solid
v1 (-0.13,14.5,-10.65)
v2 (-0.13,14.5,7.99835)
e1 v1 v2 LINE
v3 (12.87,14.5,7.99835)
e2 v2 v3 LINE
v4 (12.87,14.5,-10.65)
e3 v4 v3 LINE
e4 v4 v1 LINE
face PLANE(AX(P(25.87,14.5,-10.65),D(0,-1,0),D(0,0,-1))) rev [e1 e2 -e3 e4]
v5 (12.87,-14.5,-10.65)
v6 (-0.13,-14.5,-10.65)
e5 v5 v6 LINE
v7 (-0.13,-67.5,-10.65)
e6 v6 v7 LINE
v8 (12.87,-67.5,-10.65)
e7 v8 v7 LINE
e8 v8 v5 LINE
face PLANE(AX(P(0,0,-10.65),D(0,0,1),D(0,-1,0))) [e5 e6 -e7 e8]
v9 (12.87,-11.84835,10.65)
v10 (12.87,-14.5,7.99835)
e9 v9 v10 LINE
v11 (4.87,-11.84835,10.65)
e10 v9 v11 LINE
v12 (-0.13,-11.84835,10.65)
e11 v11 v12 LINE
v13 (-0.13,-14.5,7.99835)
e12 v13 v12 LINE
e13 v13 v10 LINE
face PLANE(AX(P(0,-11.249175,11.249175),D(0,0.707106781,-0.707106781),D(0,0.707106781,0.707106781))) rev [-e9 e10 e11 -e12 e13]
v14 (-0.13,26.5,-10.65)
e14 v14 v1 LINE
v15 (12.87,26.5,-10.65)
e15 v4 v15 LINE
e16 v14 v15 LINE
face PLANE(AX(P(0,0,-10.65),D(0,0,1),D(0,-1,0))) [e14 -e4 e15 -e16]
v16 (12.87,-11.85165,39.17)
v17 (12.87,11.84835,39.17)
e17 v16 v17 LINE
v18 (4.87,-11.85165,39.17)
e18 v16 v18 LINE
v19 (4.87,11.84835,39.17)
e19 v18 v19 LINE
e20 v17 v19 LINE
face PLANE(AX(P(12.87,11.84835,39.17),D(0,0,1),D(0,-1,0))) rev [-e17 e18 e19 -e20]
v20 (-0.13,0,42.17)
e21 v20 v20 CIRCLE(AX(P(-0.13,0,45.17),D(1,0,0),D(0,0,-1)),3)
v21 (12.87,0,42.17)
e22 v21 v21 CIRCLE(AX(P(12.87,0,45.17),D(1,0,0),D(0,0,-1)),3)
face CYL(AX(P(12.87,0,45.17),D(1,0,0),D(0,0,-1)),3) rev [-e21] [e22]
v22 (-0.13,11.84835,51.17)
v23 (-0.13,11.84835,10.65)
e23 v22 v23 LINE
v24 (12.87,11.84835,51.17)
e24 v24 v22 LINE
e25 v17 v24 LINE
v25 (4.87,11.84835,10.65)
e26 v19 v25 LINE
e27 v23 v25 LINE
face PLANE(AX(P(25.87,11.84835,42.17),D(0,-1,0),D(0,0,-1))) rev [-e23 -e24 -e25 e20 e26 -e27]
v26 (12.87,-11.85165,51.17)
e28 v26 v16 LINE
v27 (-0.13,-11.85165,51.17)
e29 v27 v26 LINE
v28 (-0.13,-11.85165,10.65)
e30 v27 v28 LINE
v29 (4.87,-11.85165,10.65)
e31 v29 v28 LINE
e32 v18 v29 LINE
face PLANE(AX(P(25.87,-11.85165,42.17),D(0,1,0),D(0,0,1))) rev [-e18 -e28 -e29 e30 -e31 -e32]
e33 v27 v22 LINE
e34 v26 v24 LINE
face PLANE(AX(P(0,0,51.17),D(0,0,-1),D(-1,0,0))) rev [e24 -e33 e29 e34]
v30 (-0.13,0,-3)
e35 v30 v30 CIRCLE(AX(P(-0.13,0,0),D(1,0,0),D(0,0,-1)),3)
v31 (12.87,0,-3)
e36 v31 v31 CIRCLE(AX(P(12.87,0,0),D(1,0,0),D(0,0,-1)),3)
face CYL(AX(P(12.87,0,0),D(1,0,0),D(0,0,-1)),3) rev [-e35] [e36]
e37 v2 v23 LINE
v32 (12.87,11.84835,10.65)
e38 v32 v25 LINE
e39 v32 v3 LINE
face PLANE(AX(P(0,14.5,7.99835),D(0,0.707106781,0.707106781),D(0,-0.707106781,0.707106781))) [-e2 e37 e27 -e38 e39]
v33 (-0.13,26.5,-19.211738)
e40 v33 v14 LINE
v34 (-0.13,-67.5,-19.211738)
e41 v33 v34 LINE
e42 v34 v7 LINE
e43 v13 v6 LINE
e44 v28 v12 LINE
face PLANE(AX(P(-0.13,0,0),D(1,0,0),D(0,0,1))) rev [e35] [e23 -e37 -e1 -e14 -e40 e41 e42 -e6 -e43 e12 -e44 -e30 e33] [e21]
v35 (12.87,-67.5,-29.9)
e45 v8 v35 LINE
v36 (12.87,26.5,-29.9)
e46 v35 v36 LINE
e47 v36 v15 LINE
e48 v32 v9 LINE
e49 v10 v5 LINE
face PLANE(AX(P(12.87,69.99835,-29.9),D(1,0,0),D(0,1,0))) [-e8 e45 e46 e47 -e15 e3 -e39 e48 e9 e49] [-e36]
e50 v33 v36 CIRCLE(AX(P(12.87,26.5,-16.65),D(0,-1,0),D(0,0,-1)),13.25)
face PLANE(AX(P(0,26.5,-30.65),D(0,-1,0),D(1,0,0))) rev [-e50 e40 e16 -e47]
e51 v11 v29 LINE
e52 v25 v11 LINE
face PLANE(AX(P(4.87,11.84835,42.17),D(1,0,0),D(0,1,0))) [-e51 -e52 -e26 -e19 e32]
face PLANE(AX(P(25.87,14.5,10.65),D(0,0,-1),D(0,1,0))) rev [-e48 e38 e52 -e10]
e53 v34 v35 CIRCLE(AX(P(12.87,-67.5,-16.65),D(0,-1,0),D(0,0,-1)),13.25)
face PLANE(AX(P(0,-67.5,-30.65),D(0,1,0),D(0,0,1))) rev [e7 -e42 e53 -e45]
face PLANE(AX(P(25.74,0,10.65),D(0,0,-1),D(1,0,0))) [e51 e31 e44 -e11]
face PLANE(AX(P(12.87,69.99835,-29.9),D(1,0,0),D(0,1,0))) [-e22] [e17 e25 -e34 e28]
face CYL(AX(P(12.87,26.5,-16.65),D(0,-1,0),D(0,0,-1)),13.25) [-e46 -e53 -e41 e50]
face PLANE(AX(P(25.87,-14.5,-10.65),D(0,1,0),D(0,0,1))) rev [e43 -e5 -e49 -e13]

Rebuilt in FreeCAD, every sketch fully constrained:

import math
import FreeCAD as App
import Part
import Sketcher
from FreeCAD import Vector


def add_polygon(sketch, points):
    """Adds a closed chain of lines whose ends are joined by coincident constraints."""
    first, n = sketch.GeometryCount, len(points)
    for a, b in zip(points, points[1:] + points[:1]):
        sketch.addGeometry(Part.LineSegment(App.Vector(*a, 0), App.Vector(*b, 0)), False)
    for i in range(n):
        sketch.addConstraint(Sketcher.Constraint("Coincident", first + i, 2, first + (i + 1) % n, 1))

doc = App.newDocument("Part")
body = doc.addObject("PartDesign::Body", "Body")

# Sketch on YZ plane
sketch1 = body.newObject("Sketcher::SketchObject", "Sketch")
sketch1.AttachmentSupport = (doc.getObject("YZ_Plane"), [""])
sketch1.MapMode = "FlatFace"
add_polygon(sketch1, [(14, 11), (-14, 11), (-14, -11), (14, -11)])  # lines 0-3
sketch1.addConstraint(Sketcher.Constraint("Horizontal", 0))
sketch1.addConstraint(Sketcher.Constraint("Vertical", 1))
sketch1.addConstraint(Sketcher.Constraint("Horizontal", 2))
sketch1.addConstraint(Sketcher.Constraint("Vertical", 3))
sketch1.addConstraint(Sketcher.Constraint("Symmetric", 0, 2, 2, 2, -1, 1))
sketch1.addConstraint(Sketcher.Constraint("DistanceX", 0, 2, 0, 1, 29.0))
sketch1.addConstraint(Sketcher.Constraint("DistanceY", 1, 2, 1, 1, 21.3))
pad1 = body.newObject("PartDesign::Pad", "Pad")
pad1.Profile = sketch1
pad1.Length = 25.87

# Sketch on YZ plane
sketch2 = body.newObject("Sketcher::SketchObject", "Sketch001")
sketch2.AttachmentSupport = (doc.getObject("YZ_Plane"), [""])
sketch2.MapMode = "FlatFace"
sketch2.AttachmentOffset = App.Placement(Vector(0, 0, 25.87), App.Rotation())
add_polygon(sketch2, [(-14.5, 8), (-11.8, 10.7), (-14.5, 10.7)])  # lines 0-2
add_polygon(sketch2, [(14.5, 10.7), (11.8, 10.7), (14.5, 8)])  # lines 3-5
sketch2.addConstraint(Sketcher.Constraint("Horizontal", 1))
sketch2.addConstraint(Sketcher.Constraint("Vertical", 2))
sketch2.addConstraint(Sketcher.Constraint("Horizontal", 3))
sketch2.addConstraint(Sketcher.Constraint("Vertical", 5))
sketch2.addConstraint(Sketcher.Constraint("Symmetric", 0, 2, 3, 2, -2))
sketch2.addConstraint(Sketcher.Constraint("Symmetric", 2, 2, 4, 2, -2))
sketch2.addConstraint(Sketcher.Constraint("Perpendicular", 0, 4))
sketch2.addConstraint(Sketcher.Constraint("DistanceX", 2, 2, 4, 2, 29.0))
sketch2.addConstraint(Sketcher.Constraint("Distance", 0, 3.75))
sketch2.addConstraint(Sketcher.Constraint("DistanceY", -1, 1, 0, 2, 10.65))
pocket1 = body.newObject("PartDesign::Pocket", "Pocket")
pocket1.Profile = sketch2
pocket1.Type = "ThroughAll"

# Sketch on XY plane
sketch3 = body.newObject("Sketcher::SketchObject", "Sketch002")
sketch3.AttachmentSupport = (doc.getObject("XY_Plane"), [""])
sketch3.MapMode = "FlatFace"
sketch3.AttachmentOffset = App.Placement(Vector(0, 0, 10.65), App.Rotation())
add_polygon(sketch3, [(21, 12), (21, -12), (26, -12), (26, 12)])  # lines 0-3
add_polygon(sketch3, [(0, 12), (0, -12), (5, -12), (5, 12)])  # lines 4-7
sketch3.addConstraint(Sketcher.Constraint("Vertical", 0))
sketch3.addConstraint(Sketcher.Constraint("Horizontal", 1))
sketch3.addConstraint(Sketcher.Constraint("Vertical", 2))
sketch3.addConstraint(Sketcher.Constraint("Horizontal", 3))
sketch3.addConstraint(Sketcher.Constraint("Vertical", 4))
sketch3.addConstraint(Sketcher.Constraint("Horizontal", 5))
sketch3.addConstraint(Sketcher.Constraint("Vertical", 6))
sketch3.addConstraint(Sketcher.Constraint("Horizontal", 7))
sketch3.addConstraint(Sketcher.Constraint("PointOnObject", 4, 2, -2))
sketch3.addConstraint(Sketcher.Constraint("Horizontal", 1, 2, 4, 2))
sketch3.addConstraint(Sketcher.Constraint("Horizontal", 3, 2, 6, 2))
sketch3.addConstraint(Sketcher.Constraint("Equal", 3, 5))
sketch3.addConstraint(Sketcher.Constraint("DistanceX", 1, 1, 1, 2, 5.0))
sketch3.addConstraint(Sketcher.Constraint("DistanceY", 0, 2, 0, 1, 23.7))
sketch3.addConstraint(Sketcher.Constraint("DistanceX", -1, 1, 0, 2, 20.87))
sketch3.addConstraint(Sketcher.Constraint("DistanceY", 0, 2, -1, 1, 11.85165))
pad2 = body.newObject("PartDesign::Pad", "Pad001")
pad2.Profile = sketch3
pad2.Length = 31.52

# Sketch on YZ plane
sketch4 = body.newObject("Sketcher::SketchObject", "Sketch003")
sketch4.AttachmentSupport = (doc.getObject("YZ_Plane"), [""])
sketch4.MapMode = "FlatFace"
sketch4.AttachmentOffset = App.Placement(Vector(0, 0, 20.87), App.Rotation())
add_polygon(sketch4, [(12, 37), (-12, 37), (-12, 42), (12, 42)])  # lines 0-3
sketch4.addConstraint(Sketcher.Constraint("Horizontal", 0))
sketch4.addConstraint(Sketcher.Constraint("Vertical", 1))
sketch4.addConstraint(Sketcher.Constraint("Horizontal", 2))
sketch4.addConstraint(Sketcher.Constraint("Vertical", 3))
sketch4.addConstraint(Sketcher.Constraint("DistanceY", 1, 1, 1, 2, 5.0))
sketch4.addConstraint(Sketcher.Constraint("DistanceX", 0, 2, 0, 1, 23.7))
sketch4.addConstraint(Sketcher.Constraint("DistanceY", -1, 1, 0, 2, 37.17))
sketch4.addConstraint(Sketcher.Constraint("DistanceX", 0, 2, -1, 1, 11.85165))
pad3 = body.newObject("PartDesign::Pad", "Pad002")
pad3.Profile = sketch4
pad3.Length = 15.9
pad3.Reversed = True

# Sketch on XY plane
sketch5 = body.newObject("Sketcher::SketchObject", "Sketch004")
sketch5.AttachmentSupport = (doc.getObject("XY_Plane"), [""])
sketch5.MapMode = "FlatFace"
sketch5.AttachmentOffset = App.Placement(Vector(0, 0, -10.65), App.Rotation())
add_polygon(sketch5, [(26, 26), (26, -68), (0, -68), (0, 26)])  # lines 0-3
sketch5.addConstraint(Sketcher.Constraint("Vertical", 0))
sketch5.addConstraint(Sketcher.Constraint("Horizontal", 1))
sketch5.addConstraint(Sketcher.Constraint("Vertical", 2))
sketch5.addConstraint(Sketcher.Constraint("Horizontal", 3))
sketch5.addConstraint(Sketcher.Constraint("PointOnObject", 1, 2, -2))
sketch5.addConstraint(Sketcher.Constraint("DistanceY", 0, 2, 0, 1, 94.0))
sketch5.addConstraint(Sketcher.Constraint("DistanceX", 1, 2, 1, 1, 25.87))
sketch5.addConstraint(Sketcher.Constraint("DistanceY", 0, 2, -1, 1, 67.5))
pad4 = body.newObject("PartDesign::Pad", "Pad003")
pad4.Profile = sketch5
pad4.Length = 20
pad4.Reversed = True

# Sketch on XZ plane
sketch6 = body.newObject("Sketcher::SketchObject", "Sketch005")
sketch6.AttachmentSupport = (doc.getObject("XZ_Plane"), [""])
sketch6.MapMode = "FlatFace"
sketch6.AttachmentOffset = App.Placement(Vector(0, 0, 67.5), App.Rotation())
sketch6.addGeometry(Part.ArcOfCircle(Part.Circle(Vector(13, -17, 0), Vector(0, 0, 1), 13), math.radians(180), math.radians(360)), False)
sketch6.addGeometry(Part.LineSegment(Vector(0, -17, 0), Vector(0, -31, 0)), False)
sketch6.addGeometry(Part.LineSegment(Vector(0, -31, 0), Vector(26, -31, 0)), False)
sketch6.addGeometry(Part.LineSegment(Vector(26, -31, 0), Vector(26, -17, 0)), False)
sketch6.addConstraint(Sketcher.Constraint("Tangent", 0, 1, 1, 1))
sketch6.addConstraint(Sketcher.Constraint("Coincident", 1, 2, 2, 1))
sketch6.addConstraint(Sketcher.Constraint("Coincident", 2, 2, 3, 1))
sketch6.addConstraint(Sketcher.Constraint("Tangent", 3, 2, 0, 2))
sketch6.addConstraint(Sketcher.Constraint("Vertical", 1))
sketch6.addConstraint(Sketcher.Constraint("Horizontal", 2))
sketch6.addConstraint(Sketcher.Constraint("Vertical", 3))
sketch6.addConstraint(Sketcher.Constraint("DistanceY", 1, 2, 1, 1, 14.0))
sketch6.addConstraint(Sketcher.Constraint("Radius", 0, 13.25))
sketch6.addConstraint(Sketcher.Constraint("DistanceX", -1, 1, 0, 3, 12.87))
sketch6.addConstraint(Sketcher.Constraint("DistanceY", 0, 3, -1, 1, 16.65))
pocket2 = body.newObject("PartDesign::Pocket", "Pocket001")
pocket2.Profile = sketch6
pocket2.Type = "ThroughAll"

# Sketch on XY plane
sketch7 = body.newObject("Sketcher::SketchObject", "Sketch006")
sketch7.AttachmentSupport = (doc.getObject("XY_Plane"), [""])
sketch7.MapMode = "FlatFace"
sketch7.AttachmentOffset = App.Placement(Vector(0, 0, 42.17), App.Rotation())
add_polygon(sketch7, [(0, 12), (0, -12), (26, -12), (26, 12)])  # lines 0-3
sketch7.addConstraint(Sketcher.Constraint("Vertical", 0))
sketch7.addConstraint(Sketcher.Constraint("Horizontal", 1))
sketch7.addConstraint(Sketcher.Constraint("Vertical", 2))
sketch7.addConstraint(Sketcher.Constraint("Horizontal", 3))
sketch7.addConstraint(Sketcher.Constraint("PointOnObject", 0, 2, -2))
sketch7.addConstraint(Sketcher.Constraint("DistanceY", 0, 2, 0, 1, 23.7))
sketch7.addConstraint(Sketcher.Constraint("DistanceX", 1, 1, 1, 2, 25.87))
sketch7.addConstraint(Sketcher.Constraint("DistanceY", 0, 2, -1, 1, 11.85165))
pad5 = body.newObject("PartDesign::Pad", "Pad004")
pad5.Profile = sketch7
pad5.Length = 9

# Sketch on XY plane
sketch8 = body.newObject("Sketcher::SketchObject", "Sketch007")
sketch8.AttachmentSupport = (doc.getObject("XY_Plane"), [""])
sketch8.MapMode = "FlatFace"
sketch8.AttachmentOffset = App.Placement(Vector(0, 0, 51.17), App.Rotation())
add_polygon(sketch8, [(-13, 70), (-13, -70), (13, -70), (13, 70)])  # lines 0-3
sketch8.addConstraint(Sketcher.Constraint("Vertical", 0))
sketch8.addConstraint(Sketcher.Constraint("Horizontal", 1))
sketch8.addConstraint(Sketcher.Constraint("Vertical", 2))
sketch8.addConstraint(Sketcher.Constraint("Horizontal", 3))
sketch8.addConstraint(Sketcher.Constraint("DistanceY", 0, 2, 0, 1, 140.0))
sketch8.addConstraint(Sketcher.Constraint("DistanceX", 1, 1, 1, 2, 25.74))
sketch8.addConstraint(Sketcher.Constraint("DistanceX", 0, 2, -1, 1, 12.87))
sketch8.addConstraint(Sketcher.Constraint("DistanceY", 0, 2, -1, 1, 70.00165))
pocket3 = body.newObject("PartDesign::Pocket", "Pocket002")
pocket3.Profile = sketch8
pocket3.Type = "ThroughAll"
doc.recompute()

datumplane = body.newObject("PartDesign::Plane", "DatumPlane")
datumplane.AttachmentSupport = (doc.getObject("YZ_Plane"), [""])
datumplane.MapMode = "FlatFace"
datumplane.AttachmentOffset = App.Placement(Vector(0, 0, 12.87), App.Rotation())
mirrored = body.newObject("PartDesign::Mirrored", "Mirrored")
mirrored.Originals = [pad1, pocket1, pad2, pad4, pocket2, pad5, pocket3]
mirrored.MirrorPlane = (datumplane, [""])
body.Tip = mirrored

# Sketch on YZ plane
sketch9 = body.newObject("Sketcher::SketchObject", "Sketch008")
sketch9.AttachmentSupport = (doc.getObject("YZ_Plane"), [""])
sketch9.MapMode = "FlatFace"
sketch9.AttachmentOffset = App.Placement(Vector(0, 0, 4.87), App.Rotation())
add_polygon(sketch9, [(12, 46), (-12, 46), (-12, 39), (12, 39)])  # lines 0-3
sketch9.addConstraint(Sketcher.Constraint("Horizontal", 0))
sketch9.addConstraint(Sketcher.Constraint("Vertical", 1))
sketch9.addConstraint(Sketcher.Constraint("Horizontal", 2))
sketch9.addConstraint(Sketcher.Constraint("Vertical", 3))
sketch9.addConstraint(Sketcher.Constraint("DistanceY", 1, 2, 1, 1, 7.0))
sketch9.addConstraint(Sketcher.Constraint("DistanceX", 0, 2, 0, 1, 23.7))
sketch9.addConstraint(Sketcher.Constraint("DistanceY", -1, 1, 0, 2, 46.17))
sketch9.addConstraint(Sketcher.Constraint("DistanceX", 0, 2, -1, 1, 11.85165))
pad6 = body.newObject("PartDesign::Pad", "Pad005")
pad6.Profile = sketch9
pad6.Length = 8

# Sketch on YZ plane
sketch10 = body.newObject("Sketcher::SketchObject", "Sketch009")
sketch10.AttachmentSupport = (doc.getObject("YZ_Plane"), [""])
sketch10.MapMode = "FlatFace"
sketch10.AttachmentOffset = App.Placement(Vector(0, 0, 12.87), App.Rotation())
sketch10.addGeometry(Part.Circle(Vector(0, 45.2, 0), Vector(0, 0, 1), 3), False)
sketch10.addGeometry(Part.Circle(Vector(0, 0, 0), Vector(0, 0, 1), 3), False)
sketch10.addConstraint(Sketcher.Constraint("Coincident", 1, 3, -1, 1))
sketch10.addConstraint(Sketcher.Constraint("Equal", 0, 1))
sketch10.addConstraint(Sketcher.Constraint("PointOnObject", 0, 3, -2))
sketch10.addConstraint(Sketcher.Constraint("Diameter", 0, 6.0))
sketch10.addConstraint(Sketcher.Constraint("DistanceY", -1, 1, 0, 3, 45.17))
doc.recompute()
hole = body.newObject("PartDesign::Hole", "Hole")
hole.Profile = sketch10
hole.ThreadType = "None"
hole.Diameter = 6
hole.DepthType = "ThroughAll"

doc.recompute()
